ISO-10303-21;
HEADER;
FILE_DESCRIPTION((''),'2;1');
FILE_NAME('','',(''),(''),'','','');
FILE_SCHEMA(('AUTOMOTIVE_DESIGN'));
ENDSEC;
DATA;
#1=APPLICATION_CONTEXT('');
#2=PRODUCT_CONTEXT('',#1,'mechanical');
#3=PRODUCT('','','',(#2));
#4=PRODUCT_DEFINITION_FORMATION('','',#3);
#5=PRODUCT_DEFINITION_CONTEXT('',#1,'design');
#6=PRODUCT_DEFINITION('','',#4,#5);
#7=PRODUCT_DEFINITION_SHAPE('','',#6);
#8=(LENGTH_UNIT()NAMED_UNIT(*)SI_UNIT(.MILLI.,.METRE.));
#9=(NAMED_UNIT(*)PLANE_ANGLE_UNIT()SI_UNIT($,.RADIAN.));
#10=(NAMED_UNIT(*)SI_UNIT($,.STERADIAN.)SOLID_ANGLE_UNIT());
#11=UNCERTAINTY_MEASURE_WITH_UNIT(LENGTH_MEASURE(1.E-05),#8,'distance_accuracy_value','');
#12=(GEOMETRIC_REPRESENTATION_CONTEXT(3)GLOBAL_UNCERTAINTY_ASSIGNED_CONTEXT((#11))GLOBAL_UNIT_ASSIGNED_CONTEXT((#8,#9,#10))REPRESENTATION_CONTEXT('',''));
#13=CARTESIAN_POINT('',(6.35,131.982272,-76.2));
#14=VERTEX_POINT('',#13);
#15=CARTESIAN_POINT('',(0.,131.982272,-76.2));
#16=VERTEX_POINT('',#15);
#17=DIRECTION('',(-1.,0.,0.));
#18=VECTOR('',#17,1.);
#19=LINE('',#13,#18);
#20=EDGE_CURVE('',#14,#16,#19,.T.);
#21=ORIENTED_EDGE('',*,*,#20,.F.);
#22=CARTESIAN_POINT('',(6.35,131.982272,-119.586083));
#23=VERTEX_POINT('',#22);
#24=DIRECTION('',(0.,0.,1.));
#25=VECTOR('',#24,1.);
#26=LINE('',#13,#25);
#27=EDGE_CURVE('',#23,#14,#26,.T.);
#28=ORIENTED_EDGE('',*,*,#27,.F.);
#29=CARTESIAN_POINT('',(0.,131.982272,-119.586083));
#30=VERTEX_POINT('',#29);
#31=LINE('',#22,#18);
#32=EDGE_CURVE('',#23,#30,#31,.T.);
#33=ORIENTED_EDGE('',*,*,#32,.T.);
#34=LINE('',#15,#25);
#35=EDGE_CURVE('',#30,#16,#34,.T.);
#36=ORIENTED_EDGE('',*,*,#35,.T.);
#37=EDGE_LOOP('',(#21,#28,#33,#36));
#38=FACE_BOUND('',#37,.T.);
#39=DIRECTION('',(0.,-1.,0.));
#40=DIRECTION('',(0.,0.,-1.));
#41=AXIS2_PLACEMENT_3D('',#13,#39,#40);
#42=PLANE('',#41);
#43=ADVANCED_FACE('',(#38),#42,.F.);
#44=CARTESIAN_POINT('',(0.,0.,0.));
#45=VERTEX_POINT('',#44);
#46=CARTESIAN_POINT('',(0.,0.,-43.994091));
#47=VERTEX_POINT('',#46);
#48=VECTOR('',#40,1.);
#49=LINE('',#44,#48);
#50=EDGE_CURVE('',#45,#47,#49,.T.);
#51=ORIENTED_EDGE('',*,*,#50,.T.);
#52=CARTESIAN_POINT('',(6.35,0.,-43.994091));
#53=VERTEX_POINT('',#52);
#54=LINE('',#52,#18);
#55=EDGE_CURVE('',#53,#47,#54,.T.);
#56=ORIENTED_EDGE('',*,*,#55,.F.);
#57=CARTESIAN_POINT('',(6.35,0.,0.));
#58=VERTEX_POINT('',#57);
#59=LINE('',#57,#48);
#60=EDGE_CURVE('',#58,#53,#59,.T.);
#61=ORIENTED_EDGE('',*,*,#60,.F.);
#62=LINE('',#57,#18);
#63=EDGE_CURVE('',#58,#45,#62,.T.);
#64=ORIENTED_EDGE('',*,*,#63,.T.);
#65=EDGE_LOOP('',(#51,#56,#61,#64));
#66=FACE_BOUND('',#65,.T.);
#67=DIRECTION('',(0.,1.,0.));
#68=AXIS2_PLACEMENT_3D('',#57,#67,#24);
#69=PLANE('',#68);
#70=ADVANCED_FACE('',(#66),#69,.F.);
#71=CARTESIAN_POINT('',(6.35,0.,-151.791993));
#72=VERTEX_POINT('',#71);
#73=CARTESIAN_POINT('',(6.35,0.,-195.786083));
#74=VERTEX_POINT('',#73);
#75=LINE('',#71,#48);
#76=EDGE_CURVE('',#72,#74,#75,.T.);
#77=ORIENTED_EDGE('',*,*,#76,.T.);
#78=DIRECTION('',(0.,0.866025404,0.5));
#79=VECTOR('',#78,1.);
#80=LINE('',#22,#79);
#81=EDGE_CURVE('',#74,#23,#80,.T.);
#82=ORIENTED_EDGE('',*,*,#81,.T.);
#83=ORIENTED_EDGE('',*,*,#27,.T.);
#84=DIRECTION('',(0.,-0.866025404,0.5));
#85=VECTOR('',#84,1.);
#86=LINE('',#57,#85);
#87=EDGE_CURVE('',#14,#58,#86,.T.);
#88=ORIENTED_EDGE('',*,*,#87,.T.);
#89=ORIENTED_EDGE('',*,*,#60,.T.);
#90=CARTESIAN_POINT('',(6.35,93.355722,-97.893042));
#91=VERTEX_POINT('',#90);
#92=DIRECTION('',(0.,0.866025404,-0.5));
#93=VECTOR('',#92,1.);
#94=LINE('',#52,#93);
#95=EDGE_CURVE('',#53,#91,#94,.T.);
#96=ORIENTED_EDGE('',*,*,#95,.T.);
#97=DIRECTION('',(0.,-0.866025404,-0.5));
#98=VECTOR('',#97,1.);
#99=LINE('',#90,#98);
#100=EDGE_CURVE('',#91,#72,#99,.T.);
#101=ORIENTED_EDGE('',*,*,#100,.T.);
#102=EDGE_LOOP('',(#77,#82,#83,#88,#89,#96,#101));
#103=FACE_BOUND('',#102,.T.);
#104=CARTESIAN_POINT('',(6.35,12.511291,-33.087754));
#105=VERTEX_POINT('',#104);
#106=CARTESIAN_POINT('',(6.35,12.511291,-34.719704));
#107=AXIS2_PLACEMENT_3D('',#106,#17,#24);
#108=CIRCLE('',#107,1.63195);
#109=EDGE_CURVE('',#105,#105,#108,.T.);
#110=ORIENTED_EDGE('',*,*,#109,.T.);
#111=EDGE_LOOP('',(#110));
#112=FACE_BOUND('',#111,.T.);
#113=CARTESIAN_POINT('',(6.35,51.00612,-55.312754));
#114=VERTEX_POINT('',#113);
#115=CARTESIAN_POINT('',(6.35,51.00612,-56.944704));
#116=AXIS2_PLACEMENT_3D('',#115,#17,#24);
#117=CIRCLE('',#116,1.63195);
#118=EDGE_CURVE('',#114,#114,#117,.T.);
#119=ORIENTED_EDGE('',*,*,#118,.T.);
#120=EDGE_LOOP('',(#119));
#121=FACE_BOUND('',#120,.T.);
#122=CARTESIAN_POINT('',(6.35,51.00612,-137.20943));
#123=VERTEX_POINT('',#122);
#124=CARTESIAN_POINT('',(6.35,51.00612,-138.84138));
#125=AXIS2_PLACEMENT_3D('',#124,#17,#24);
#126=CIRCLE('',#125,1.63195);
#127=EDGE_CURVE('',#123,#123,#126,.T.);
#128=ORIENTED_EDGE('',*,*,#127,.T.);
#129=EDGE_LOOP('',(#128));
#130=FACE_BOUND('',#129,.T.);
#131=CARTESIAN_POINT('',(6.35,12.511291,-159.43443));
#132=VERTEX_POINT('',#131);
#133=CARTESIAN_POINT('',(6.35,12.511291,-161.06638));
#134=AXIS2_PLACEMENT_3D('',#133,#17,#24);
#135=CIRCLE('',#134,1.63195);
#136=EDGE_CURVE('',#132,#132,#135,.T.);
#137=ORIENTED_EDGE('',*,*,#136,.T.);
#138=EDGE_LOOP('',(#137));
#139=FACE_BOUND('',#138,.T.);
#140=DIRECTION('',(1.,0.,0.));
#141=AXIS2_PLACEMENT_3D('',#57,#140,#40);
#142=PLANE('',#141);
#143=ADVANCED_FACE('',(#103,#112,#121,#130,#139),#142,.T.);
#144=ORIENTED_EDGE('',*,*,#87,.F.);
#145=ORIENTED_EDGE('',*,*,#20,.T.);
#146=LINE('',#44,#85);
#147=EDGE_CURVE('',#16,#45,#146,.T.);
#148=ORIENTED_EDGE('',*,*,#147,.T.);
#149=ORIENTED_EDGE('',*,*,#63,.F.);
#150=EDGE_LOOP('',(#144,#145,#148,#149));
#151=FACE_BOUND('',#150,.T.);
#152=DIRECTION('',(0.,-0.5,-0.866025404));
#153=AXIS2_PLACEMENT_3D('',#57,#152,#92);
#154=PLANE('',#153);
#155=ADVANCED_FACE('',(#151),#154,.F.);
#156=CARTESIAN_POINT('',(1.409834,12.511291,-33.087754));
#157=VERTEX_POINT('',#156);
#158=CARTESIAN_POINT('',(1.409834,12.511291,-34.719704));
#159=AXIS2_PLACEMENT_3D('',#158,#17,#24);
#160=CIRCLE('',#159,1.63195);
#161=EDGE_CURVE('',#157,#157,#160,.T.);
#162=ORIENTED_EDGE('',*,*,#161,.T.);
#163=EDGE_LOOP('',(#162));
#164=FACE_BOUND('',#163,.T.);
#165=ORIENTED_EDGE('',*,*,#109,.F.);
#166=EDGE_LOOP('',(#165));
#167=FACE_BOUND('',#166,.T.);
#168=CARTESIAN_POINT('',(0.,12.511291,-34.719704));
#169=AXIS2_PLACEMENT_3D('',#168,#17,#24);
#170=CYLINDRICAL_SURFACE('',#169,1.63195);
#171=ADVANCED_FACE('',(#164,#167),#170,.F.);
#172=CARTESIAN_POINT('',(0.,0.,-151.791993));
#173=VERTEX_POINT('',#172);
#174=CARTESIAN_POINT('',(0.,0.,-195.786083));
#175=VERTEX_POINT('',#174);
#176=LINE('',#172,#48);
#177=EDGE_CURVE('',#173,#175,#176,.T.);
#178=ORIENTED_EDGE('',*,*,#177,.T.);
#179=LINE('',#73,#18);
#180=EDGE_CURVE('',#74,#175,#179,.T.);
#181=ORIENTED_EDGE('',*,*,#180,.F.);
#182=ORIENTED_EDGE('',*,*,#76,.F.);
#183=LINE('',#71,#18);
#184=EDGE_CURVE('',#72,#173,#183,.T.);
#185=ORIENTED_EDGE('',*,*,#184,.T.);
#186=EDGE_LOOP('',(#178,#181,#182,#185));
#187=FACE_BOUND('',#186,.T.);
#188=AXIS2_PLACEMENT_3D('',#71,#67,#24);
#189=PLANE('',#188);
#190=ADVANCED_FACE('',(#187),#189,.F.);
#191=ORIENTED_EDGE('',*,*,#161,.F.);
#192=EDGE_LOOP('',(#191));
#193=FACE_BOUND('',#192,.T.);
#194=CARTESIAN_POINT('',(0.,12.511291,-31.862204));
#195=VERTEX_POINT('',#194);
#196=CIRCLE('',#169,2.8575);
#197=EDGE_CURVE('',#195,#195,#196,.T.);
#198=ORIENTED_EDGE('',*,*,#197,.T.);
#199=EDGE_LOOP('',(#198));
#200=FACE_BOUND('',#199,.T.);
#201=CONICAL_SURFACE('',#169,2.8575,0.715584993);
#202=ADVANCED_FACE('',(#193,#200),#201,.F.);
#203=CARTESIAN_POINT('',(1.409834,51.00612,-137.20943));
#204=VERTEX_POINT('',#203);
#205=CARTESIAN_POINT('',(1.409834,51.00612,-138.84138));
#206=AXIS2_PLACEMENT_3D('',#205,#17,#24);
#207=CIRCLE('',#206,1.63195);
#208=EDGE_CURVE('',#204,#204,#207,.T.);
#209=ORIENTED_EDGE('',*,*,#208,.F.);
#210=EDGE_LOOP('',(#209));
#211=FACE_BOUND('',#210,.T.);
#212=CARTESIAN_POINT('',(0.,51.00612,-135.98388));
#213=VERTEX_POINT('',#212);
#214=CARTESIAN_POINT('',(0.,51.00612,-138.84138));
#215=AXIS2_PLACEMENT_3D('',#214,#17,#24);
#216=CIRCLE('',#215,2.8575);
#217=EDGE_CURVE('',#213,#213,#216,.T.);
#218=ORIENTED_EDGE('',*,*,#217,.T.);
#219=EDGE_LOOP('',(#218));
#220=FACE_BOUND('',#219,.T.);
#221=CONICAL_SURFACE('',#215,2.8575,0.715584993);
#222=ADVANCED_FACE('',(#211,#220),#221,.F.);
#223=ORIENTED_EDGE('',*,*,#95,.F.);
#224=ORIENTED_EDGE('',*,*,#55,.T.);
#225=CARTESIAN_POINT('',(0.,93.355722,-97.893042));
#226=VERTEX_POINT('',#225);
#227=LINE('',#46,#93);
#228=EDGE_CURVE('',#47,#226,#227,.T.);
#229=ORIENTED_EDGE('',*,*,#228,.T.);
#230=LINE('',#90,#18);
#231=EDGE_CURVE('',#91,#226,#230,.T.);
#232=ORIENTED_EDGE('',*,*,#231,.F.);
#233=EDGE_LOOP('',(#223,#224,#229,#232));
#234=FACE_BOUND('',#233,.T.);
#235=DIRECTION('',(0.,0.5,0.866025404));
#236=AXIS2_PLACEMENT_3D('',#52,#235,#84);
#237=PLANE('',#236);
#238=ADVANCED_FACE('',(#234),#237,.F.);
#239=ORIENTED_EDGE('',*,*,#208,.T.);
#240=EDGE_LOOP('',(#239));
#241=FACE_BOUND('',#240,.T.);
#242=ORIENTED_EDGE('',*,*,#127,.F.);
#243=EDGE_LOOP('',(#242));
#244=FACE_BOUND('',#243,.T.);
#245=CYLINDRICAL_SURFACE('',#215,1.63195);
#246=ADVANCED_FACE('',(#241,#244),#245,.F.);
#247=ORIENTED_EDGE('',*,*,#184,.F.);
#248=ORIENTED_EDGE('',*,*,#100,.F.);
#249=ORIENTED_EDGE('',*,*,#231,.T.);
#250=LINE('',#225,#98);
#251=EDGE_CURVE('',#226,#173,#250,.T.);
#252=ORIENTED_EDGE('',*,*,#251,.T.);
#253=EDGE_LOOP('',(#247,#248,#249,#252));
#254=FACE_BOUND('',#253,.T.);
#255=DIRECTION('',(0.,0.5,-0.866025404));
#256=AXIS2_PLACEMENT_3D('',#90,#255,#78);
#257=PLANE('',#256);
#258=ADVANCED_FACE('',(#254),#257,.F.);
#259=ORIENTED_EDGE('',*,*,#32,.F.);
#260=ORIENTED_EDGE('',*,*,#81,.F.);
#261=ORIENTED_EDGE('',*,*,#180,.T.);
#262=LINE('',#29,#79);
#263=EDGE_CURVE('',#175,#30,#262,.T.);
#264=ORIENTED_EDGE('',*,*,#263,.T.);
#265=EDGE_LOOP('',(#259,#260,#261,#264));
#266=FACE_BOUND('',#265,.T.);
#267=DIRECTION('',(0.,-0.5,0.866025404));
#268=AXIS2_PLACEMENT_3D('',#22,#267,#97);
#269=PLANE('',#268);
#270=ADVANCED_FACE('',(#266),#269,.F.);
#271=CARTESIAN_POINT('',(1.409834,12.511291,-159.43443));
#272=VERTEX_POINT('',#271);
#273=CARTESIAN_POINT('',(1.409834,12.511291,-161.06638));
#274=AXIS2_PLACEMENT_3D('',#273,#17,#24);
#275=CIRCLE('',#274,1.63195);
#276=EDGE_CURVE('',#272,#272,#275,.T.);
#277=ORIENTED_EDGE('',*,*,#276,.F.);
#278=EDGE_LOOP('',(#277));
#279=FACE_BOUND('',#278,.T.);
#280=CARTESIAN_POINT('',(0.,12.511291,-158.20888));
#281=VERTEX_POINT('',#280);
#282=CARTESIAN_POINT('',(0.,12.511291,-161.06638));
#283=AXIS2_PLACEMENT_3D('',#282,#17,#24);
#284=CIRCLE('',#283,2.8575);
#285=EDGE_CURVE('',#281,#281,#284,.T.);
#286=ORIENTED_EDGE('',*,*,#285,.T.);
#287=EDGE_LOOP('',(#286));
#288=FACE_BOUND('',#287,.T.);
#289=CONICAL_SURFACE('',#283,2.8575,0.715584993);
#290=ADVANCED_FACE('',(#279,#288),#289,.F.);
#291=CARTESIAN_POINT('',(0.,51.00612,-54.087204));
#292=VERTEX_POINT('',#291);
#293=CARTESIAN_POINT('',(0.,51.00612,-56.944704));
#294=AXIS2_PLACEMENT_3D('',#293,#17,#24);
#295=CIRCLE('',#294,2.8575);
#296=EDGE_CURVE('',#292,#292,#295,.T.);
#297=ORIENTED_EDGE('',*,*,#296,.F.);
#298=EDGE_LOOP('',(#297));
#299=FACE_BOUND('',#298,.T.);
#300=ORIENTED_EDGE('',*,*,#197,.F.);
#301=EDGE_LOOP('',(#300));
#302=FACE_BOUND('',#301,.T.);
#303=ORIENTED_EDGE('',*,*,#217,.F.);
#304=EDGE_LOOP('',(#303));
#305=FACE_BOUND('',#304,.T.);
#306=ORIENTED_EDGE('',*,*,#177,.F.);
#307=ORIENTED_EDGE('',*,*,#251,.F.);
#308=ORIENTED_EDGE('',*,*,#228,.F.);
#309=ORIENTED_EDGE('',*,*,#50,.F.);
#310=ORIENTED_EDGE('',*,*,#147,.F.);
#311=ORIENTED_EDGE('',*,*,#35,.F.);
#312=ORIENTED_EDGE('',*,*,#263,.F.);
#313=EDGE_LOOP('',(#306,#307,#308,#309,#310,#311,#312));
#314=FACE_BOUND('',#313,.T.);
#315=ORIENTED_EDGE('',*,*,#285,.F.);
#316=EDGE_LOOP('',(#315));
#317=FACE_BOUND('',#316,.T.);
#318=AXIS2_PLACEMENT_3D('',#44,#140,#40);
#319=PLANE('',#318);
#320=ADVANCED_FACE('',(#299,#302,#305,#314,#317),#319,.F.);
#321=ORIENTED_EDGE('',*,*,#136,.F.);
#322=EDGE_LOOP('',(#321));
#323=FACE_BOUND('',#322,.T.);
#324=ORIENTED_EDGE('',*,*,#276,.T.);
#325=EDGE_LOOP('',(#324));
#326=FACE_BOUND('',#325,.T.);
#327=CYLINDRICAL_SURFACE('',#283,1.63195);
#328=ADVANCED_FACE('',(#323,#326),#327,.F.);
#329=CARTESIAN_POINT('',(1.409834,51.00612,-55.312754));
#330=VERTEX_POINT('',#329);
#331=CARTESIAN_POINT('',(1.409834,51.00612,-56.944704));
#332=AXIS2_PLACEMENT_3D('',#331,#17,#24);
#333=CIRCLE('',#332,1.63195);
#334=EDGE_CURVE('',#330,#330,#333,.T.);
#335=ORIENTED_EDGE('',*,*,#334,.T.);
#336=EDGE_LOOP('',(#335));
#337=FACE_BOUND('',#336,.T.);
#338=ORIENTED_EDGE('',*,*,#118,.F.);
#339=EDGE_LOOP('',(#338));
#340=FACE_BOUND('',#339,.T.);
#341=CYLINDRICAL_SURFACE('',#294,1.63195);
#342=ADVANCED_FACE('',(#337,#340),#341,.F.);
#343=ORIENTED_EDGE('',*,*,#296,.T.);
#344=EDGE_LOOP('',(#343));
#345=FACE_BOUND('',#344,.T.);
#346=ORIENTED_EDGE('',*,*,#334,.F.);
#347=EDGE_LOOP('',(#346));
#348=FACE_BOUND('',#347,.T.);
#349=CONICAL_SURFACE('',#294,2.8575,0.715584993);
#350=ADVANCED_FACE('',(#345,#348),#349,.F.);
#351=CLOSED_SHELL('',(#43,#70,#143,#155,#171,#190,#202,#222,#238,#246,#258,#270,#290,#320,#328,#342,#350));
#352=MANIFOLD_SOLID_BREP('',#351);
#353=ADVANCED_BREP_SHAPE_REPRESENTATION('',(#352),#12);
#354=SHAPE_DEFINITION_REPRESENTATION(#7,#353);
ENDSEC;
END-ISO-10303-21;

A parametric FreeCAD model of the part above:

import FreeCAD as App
import Part
import Sketcher

V = App.Vector
Q = App.Units.Quantity

doc = App.newDocument("Part")
body = doc.addObject("PartDesign::Body", "Body")

sketch1 = body.newObject("Sketcher::SketchObject", "Sketch")
sketch1.AttachmentSupport = (doc.getObject("YZ_Plane"), [""])
sketch1.MapMode = "FlatFace"
sketch1.addGeometry(Part.LineSegment(V(132, -76, 0), V(0, 0, 0)), False)
sketch1.addGeometry(Part.LineSegment(V(0, 0, 0), V(0, -44, 0)), False)
sketch1.addGeometry(Part.LineSegment(V(0, -44, 0), V(93, -98, 0)), False)
sketch1.addGeometry(Part.LineSegment(V(93, -98, 0), V(0, -152, 0)), False)
sketch1.addGeometry(Part.LineSegment(V(0, -152, 0), V(0, -196, 0)), False)
sketch1.addGeometry(Part.LineSegment(V(0, -196, 0), V(132, -120, 0)), False)
sketch1.addGeometry(Part.LineSegment(V(132, -120, 0), V(132, -76, 0)), False)
sketch1.addConstraint(Sketcher.Constraint("Coincident", 0, 2, 1, 1))
sketch1.addConstraint(Sketcher.Constraint("Coincident", 1, 2, 2, 1))
sketch1.addConstraint(Sketcher.Constraint("Coincident", 2, 2, 3, 1))
sketch1.addConstraint(Sketcher.Constraint("Coincident", 3, 2, 4, 1))
sketch1.addConstraint(Sketcher.Constraint("Coincident", 4, 2, 5, 1))
sketch1.addConstraint(Sketcher.Constraint("Coincident", 5, 2, 6, 1))
sketch1.addConstraint(Sketcher.Constraint("Coincident", 6, 2, 0, 1))
sketch1.addConstraint(Sketcher.Constraint("Vertical", 1))
sketch1.addConstraint(Sketcher.Constraint("Vertical", 4))
sketch1.addConstraint(Sketcher.Constraint("Vertical", 6))
sketch1.addConstraint(Sketcher.Constraint("Coincident", 0, 2, -1, 1))
sketch1.addConstraint(Sketcher.Constraint("PointOnObject", 3, 2, -2))
sketch1.addConstraint(Sketcher.Constraint("Parallel", 0, 2))
sketch1.addConstraint(Sketcher.Constraint("Parallel", 3, 5))
sketch1.addConstraint(Sketcher.Constraint("Equal", 1, 4))
sketch1.addConstraint(Sketcher.Constraint("Equal", 2, 3))
sketch1.addConstraint(Sketcher.Constraint("Distance", 0, Q("6 in")))
sketch1.addConstraint(Sketcher.Constraint("DistanceY", 6, 2, -1, 1, Q("3 in")))
sketch1.addConstraint(Sketcher.Constraint("DistanceY", 1, 2, 1, 1, Q("43.994091 mm")))
sketch1.addConstraint(Sketcher.Constraint("DistanceY", 6, 1, 6, 2, Q("43.386083 mm")))
pad1 = body.newObject("PartDesign::Pad", "Pad")
pad1.Profile = sketch1
pad1.Length = Q("0.25 in")

sketch2 = body.newObject("Sketcher::SketchObject", "Sketch001")
sketch2.AttachmentSupport = (doc.getObject("YZ_Plane"), [""])
sketch2.MapMode = "FlatFace"
sketch2.addGeometry(Part.Circle(V(12.5, -161.1, 0), V(0, 0, 1), 1.6), False)
sketch2.addGeometry(Part.Circle(V(51, -138.8, 0), V(0, 0, 1), 1.6), False)
sketch2.addGeometry(Part.Circle(V(51, -56.9, 0), V(0, 0, 1), 1.6), False)
sketch2.addGeometry(Part.Circle(V(12.5, -34.7, 0), V(0, 0, 1), 1.6), False)
sketch2.addConstraint(Sketcher.Constraint("Equal", 0, 1))
sketch2.addConstraint(Sketcher.Constraint("Equal", 1, 2))
sketch2.addConstraint(Sketcher.Constraint("Equal", 2, 3))
sketch2.addConstraint(Sketcher.Constraint("Vertical", 1, 3, 2, 3))
sketch2.addConstraint(Sketcher.Constraint("Vertical", 0, 3, 3, 3))
sketch2.addConstraint(Sketcher.Constraint("Diameter", 0, Q("0.1285 in")))
sketch2.addConstraint(Sketcher.Constraint("DistanceY", 0, 3, 1, 3, Q("0.875 in")))
sketch2.addConstraint(Sketcher.Constraint("DistanceY", 2, 3, 3, 3, Q("0.875 in")))
sketch2.addConstraint(Sketcher.Constraint("DistanceX", -1, 1, 0, 3, Q("12.511291 mm")))
sketch2.addConstraint(Sketcher.Constraint("DistanceY", 0, 3, -1, 1, Q("161.06638 mm")))
sketch2.addConstraint(Sketcher.Constraint("DistanceX", -1, 1, 1, 3, Q("51.00612 mm")))
sketch2.addConstraint(Sketcher.Constraint("DistanceY", 2, 3, -1, 1, Q("56.944704 mm")))
doc.recompute()
hole = body.newObject("PartDesign::Hole", "Hole")
hole.Profile = sketch2
hole.ThreadType = "None"
hole.Diameter = Q("0.1285 in")
hole.DepthType = "ThroughAll"
hole.HoleCutType = "Countersink"
hole.HoleCutDiameter = Q("0.225 in")
hole.HoleCutCountersinkAngle = 82
hole.Reversed = True

doc.recompute()
